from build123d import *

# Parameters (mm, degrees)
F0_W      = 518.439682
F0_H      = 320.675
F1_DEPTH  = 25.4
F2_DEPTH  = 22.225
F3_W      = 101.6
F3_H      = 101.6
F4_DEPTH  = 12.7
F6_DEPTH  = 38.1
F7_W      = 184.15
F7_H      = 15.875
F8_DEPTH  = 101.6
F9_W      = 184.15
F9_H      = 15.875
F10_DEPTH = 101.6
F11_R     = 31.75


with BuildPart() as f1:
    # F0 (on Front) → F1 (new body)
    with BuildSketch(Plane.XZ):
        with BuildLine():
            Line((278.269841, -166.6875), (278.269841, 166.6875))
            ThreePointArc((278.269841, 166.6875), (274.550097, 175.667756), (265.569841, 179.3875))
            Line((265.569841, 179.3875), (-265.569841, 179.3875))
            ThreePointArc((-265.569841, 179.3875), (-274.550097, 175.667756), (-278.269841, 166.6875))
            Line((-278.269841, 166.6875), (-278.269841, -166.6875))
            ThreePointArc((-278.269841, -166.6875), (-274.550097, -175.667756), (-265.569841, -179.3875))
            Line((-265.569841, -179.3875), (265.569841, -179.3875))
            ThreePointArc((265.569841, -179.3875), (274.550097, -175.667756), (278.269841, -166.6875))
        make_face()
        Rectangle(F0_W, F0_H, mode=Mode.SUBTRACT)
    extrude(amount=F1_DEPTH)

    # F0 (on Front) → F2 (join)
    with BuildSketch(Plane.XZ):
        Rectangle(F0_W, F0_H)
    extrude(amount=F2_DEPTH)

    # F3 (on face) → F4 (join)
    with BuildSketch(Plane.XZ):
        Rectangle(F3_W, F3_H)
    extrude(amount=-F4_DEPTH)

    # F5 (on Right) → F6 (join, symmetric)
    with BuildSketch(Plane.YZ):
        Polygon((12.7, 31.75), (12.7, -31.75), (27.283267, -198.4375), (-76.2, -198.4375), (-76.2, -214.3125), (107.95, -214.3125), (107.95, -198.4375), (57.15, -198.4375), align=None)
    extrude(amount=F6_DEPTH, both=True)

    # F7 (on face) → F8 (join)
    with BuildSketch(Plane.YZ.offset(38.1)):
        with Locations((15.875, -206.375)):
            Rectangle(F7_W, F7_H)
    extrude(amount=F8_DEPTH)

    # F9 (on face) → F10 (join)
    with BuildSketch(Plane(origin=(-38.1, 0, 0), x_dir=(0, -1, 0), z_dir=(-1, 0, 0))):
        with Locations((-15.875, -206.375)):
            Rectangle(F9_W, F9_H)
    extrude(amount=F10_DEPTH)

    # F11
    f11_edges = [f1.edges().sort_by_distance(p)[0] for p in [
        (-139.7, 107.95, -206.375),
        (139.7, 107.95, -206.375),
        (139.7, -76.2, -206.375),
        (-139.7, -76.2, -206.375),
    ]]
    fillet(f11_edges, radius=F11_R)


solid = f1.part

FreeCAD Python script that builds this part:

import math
import FreeCAD as App
import Part
import Sketcher
Q = App.Units.Quantity


def edges_at(feature, points):
    """Names of the edges that pass closest to the given points."""
    edges = feature.Shape.Edges
    near = lambda p: min(range(len(edges)), key=lambda i: edges[i].distToShape(Part.Vertex(*p))[0])
    return sorted({f"Edge{near(p) + 1}" for p in points})

doc = App.newDocument("Part")
params = doc.addObject("Spreadsheet::Sheet", "Params")
for row, (alias, value) in enumerate([
    ("sketch1_radius", "0.5 in"),
    ("sketch1_height", "13.125 in"),
    ("sketch1_height2", "12.625 in"),
    ("pad1_length", "1 in"),
    ("sketch2_height", "12.625 in"),
    ("pad2_length", "0.875 in"),
    ("sketch3_width", "4 in"),
    ("pad3_length", "0.5 in"),
    ("sketch4_width", "2 in"),
    ("sketch4_height", "2.5 in"),
    ("sketch4_width2", "7.25 in"),
    ("sketch4_height2", "0.625 in"),
    ("pad4_length", "3 in"),
    ("sketch5_width", "7.25 in"),
    ("sketch5_height", "0.625 in"),
    ("pad5_length", "4 in"),
    ("sketch6_width", "7.25 in"),
    ("sketch6_height", "0.625 in"),
    ("pad6_length", "4 in"),
    ("fillet_radius", "1.25 in"),
], start=1):
    params.set(f"A{row}", alias)
    params.set(f"B{row}", "=" + value)
    params.setAlias(f"B{row}", alias)

body = doc.addObject("PartDesign::Body", "Body")

# Sketch on XZ plane
sketch1 = doc.addObject("Sketcher::SketchObject", "Sketch")
body.addObject(sketch1)
sketch1.AttachmentSupport = (doc.XZ_Plane, [""])
sketch1.MapMode = "FlatFace"
sketch1.addGeometry(Part.LineSegment(App.Vector(278, -167, 0), App.Vector(278, 167, 0)), False)
sketch1.addGeometry(Part.ArcOfCircle(Part.Circle(App.Vector(266, 167, 0), App.Vector(0, 0, 1), 13), math.radians(0), math.radians(90)), False)
sketch1.addGeometry(Part.LineSegment(App.Vector(266, 179, 0), App.Vector(-266, 179, 0)), False)
sketch1.addGeometry(Part.ArcOfCircle(Part.Circle(App.Vector(-266, 167, 0), App.Vector(0, 0, 1), 13), math.radians(90), math.radians(180)), False)
sketch1.addGeometry(Part.LineSegment(App.Vector(-278, 167, 0), App.Vector(-278, -167, 0)), False)
sketch1.addGeometry(Part.ArcOfCircle(Part.Circle(App.Vector(-266, -167, 0), App.Vector(0, 0, 1), 13), math.radians(-180), math.radians(-90)), False)
sketch1.addGeometry(Part.LineSegment(App.Vector(-266, -179, 0), App.Vector(266, -179, 0)), False)
sketch1.addGeometry(Part.ArcOfCircle(Part.Circle(App.Vector(266, -167, 0), App.Vector(0, 0, 1), 13), math.radians(-90), math.radians(0)), False)
sketch1.addGeometry(Part.LineSegment(App.Vector(259, -160, 0), App.Vector(-259, -160, 0)), False)
sketch1.addGeometry(Part.LineSegment(App.Vector(-259, -160, 0), App.Vector(-259, 160, 0)), False)
sketch1.addGeometry(Part.LineSegment(App.Vector(-259, 160, 0), App.Vector(259, 160, 0)), False)
sketch1.addGeometry(Part.LineSegment(App.Vector(259, 160, 0), App.Vector(259, -160, 0)), False)
sketch1.addConstraint(Sketcher.Constraint("Tangent", 0, 2, 1, 1))
sketch1.addConstraint(Sketcher.Constraint("Tangent", 1, 2, 2, 1))
sketch1.addConstraint(Sketcher.Constraint("Tangent", 2, 2, 3, 1))
sketch1.addConstraint(Sketcher.Constraint("Tangent", 3, 2, 4, 1))
sketch1.addConstraint(Sketcher.Constraint("Tangent", 4, 2, 5, 1))
sketch1.addConstraint(Sketcher.Constraint("Tangent", 5, 2, 6, 1))
sketch1.addConstraint(Sketcher.Constraint("Tangent", 6, 2, 7, 1))
sketch1.addConstraint(Sketcher.Constraint("Tangent", 7, 2, 0, 1))
sketch1.addConstraint(Sketcher.Constraint("Coincident", 8, 2, 9, 1))
sketch1.addConstraint(Sketcher.Constraint("Coincident", 9, 2, 10, 1))
sketch1.addConstraint(Sketcher.Constraint("Coincident", 10, 2, 11, 1))
sketch1.addConstraint(Sketcher.Constraint("Coincident", 11, 2, 8, 1))
sketch1.addConstraint(Sketcher.Constraint("Vertical", 0))
sketch1.addConstraint(Sketcher.Constraint("Horizontal", 2))
sketch1.addConstraint(Sketcher.Constraint("Vertical", 4))
sketch1.addConstraint(Sketcher.Constraint("Horizontal", 6))
sketch1.addConstraint(Sketcher.Constraint("Horizontal", 8))
sketch1.addConstraint(Sketcher.Constraint("Vertical", 9))
sketch1.addConstraint(Sketcher.Constraint("Horizontal", 10))
sketch1.addConstraint(Sketcher.Constraint("Vertical", 11))
sketch1.addConstraint(Sketcher.Constraint("Equal", 1, 3))
sketch1.addConstraint(Sketcher.Constraint("Equal", 3, 5))
sketch1.addConstraint(Sketcher.Constraint("Equal", 5, 7))
sketch1.addConstraint(Sketcher.Constraint("Symmetric", 1, 3, 5, 3, -1, 1))
sketch1.addConstraint(Sketcher.Constraint("Symmetric", 8, 2, 10, 2, -1, 1))
sketch1.addConstraint(Sketcher.Constraint("Radius", 1, Q("0.5 in")))
sketch1.addConstraint(Sketcher.Constraint("DistanceY", 0, 1, 0, 2, Q("13.125 in")))
sketch1.addConstraint(Sketcher.Constraint("DistanceY", 9, 1, 9, 2, Q("12.625 in")))
sketch1.addConstraint(Sketcher.Constraint("DistanceX", 5, 3, 8, 2, Q("0.25 in")))
sketch1.addConstraint(Sketcher.Constraint("DistanceX", 2, 2, 2, 1, 531.139682))
sketch1.setExpression("Constraints[25]", "Params.sketch1_radius")
sketch1.setExpression("Constraints[26]", "Params.sketch1_height")
sketch1.setExpression("Constraints[27]", "Params.sketch1_height2")
pad1 = doc.addObject("PartDesign::Pad", "Pad")
body.addObject(pad1)
pad1.Profile = sketch1
pad1.setExpression("Length", "Params.pad1_length")

# Sketch on XZ plane
sketch2 = doc.addObject("Sketcher::SketchObject", "Sketch001")
body.addObject(sketch2)
sketch2.AttachmentSupport = (doc.XZ_Plane, [""])
sketch2.MapMode = "FlatFace"
sketch2.addGeometry(Part.LineSegment(App.Vector(-259, 160, 0), App.Vector(-259, -160, 0)), False)
sketch2.addGeometry(Part.LineSegment(App.Vector(-259, -160, 0), App.Vector(259, -160, 0)), False)
sketch2.addGeometry(Part.LineSegment(App.Vector(259, -160, 0), App.Vector(259, 160, 0)), False)
sketch2.addGeometry(Part.LineSegment(App.Vector(259, 160, 0), App.Vector(-259, 160, 0)), False)
sketch2.addConstraint(Sketcher.Constraint("Coincident", 0, 2, 1, 1))
sketch2.addConstraint(Sketcher.Constraint("Coincident", 1, 2, 2, 1))
sketch2.addConstraint(Sketcher.Constraint("Coincident", 2, 2, 3, 1))
sketch2.addConstraint(Sketcher.Constraint("Coincident", 3, 2, 0, 1))
sketch2.addConstraint(Sketcher.Constraint("Vertical", 0))
sketch2.addConstraint(Sketcher.Constraint("Horizontal", 1))
sketch2.addConstraint(Sketcher.Constraint("Vertical", 2))
sketch2.addConstraint(Sketcher.Constraint("Horizontal", 3))
sketch2.addConstraint(Sketcher.Constraint("Symmetric", 0, 2, 2, 2, -1, 1))
sketch2.addConstraint(Sketcher.Constraint("DistanceY", 0, 2, 0, 1, Q("12.625 in")))
sketch2.addConstraint(Sketcher.Constraint("DistanceX", 1, 1, 1, 2, 518.439682))
sketch2.setExpression("Constraints[9]", "Params.sketch2_height")
pad2 = doc.addObject("PartDesign::Pad", "Pad001")
body.addObject(pad2)
pad2.Profile = sketch2
pad2.setExpression("Length", "Params.pad2_length")

# Sketch on XZ plane
sketch3 = doc.addObject("Sketcher::SketchObject", "Sketch002")
body.addObject(sketch3)
sketch3.AttachmentSupport = (doc.XZ_Plane, [""])
sketch3.MapMode = "FlatFace"
sketch3.addGeometry(Part.LineSegment(App.Vector(-51, 51, 0), App.Vector(-51, -51, 0)), False)
sketch3.addGeometry(Part.LineSegment(App.Vector(-51, -51, 0), App.Vector(51, -51, 0)), False)
sketch3.addGeometry(Part.LineSegment(App.Vector(51, -51, 0), App.Vector(51, 51, 0)), False)
sketch3.addGeometry(Part.LineSegment(App.Vector(51, 51, 0), App.Vector(-51, 51, 0)), False)
sketch3.addConstraint(Sketcher.Constraint("Coincident", 0, 2, 1, 1))
sketch3.addConstraint(Sketcher.Constraint("Coincident", 1, 2, 2, 1))
sketch3.addConstraint(Sketcher.Constraint("Coincident", 2, 2, 3, 1))
sketch3.addConstraint(Sketcher.Constraint("Coincident", 3, 2, 0, 1))
sketch3.addConstraint(Sketcher.Constraint("Vertical", 0))
sketch3.addConstraint(Sketcher.Constraint("Horizontal", 1))
sketch3.addConstraint(Sketcher.Constraint("Vertical", 2))
sketch3.addConstraint(Sketcher.Constraint("Horizontal", 3))
sketch3.addConstraint(Sketcher.Constraint("Symmetric", 0, 2, 2, 2, -1, 1))
sketch3.addConstraint(Sketcher.Constraint("Equal", 3, 0))
sketch3.addConstraint(Sketcher.Constraint("DistanceX", 1, 1, 1, 2, Q("4 in")))
sketch3.setExpression("Constraints[10]", "Params.sketch3_width")
pad3 = doc.addObject("PartDesign::Pad", "Pad002")
body.addObject(pad3)
pad3.Profile = sketch3
pad3.setExpression("Length", "Params.pad3_length")
pad3.Reversed = True

# Sketch on YZ plane
sketch4 = doc.addObject("Sketcher::SketchObject", "Sketch003")
body.addObject(sketch4)
sketch4.AttachmentSupport = (doc.YZ_Plane, [""])
sketch4.MapMode = "FlatFace"
sketch4.addGeometry(Part.LineSegment(App.Vector(13, 32, 0), App.Vector(13, -32, 0)), False)
sketch4.addGeometry(Part.LineSegment(App.Vector(13, -32, 0), App.Vector(27, -198, 0)), False)
sketch4.addGeometry(Part.LineSegment(App.Vector(27, -198, 0), App.Vector(-76, -198, 0)), False)
sketch4.addGeometry(Part.LineSegment(App.Vector(-76, -198, 0), App.Vector(-76, -214, 0)), False)
sketch4.addGeometry(Part.LineSegment(App.Vector(-76, -214, 0), App.Vector(108, -214, 0)), False)
sketch4.addGeometry(Part.LineSegment(App.Vector(108, -214, 0), App.Vector(108, -198, 0)), False)
sketch4.addGeometry(Part.LineSegment(App.Vector(108, -198, 0), App.Vector(57, -198, 0)), False)
sketch4.addGeometry(Part.LineSegment(App.Vector(57, -198, 0), App.Vector(13, 32, 0)), False)
sketch4.addConstraint(Sketcher.Constraint("Coincident", 0, 2, 1, 1))
sketch4.addConstraint(Sketcher.Constraint("Coincident", 1, 2, 2, 1))
sketch4.addConstraint(Sketcher.Constraint("Coincident", 2, 2, 3, 1))
sketch4.addConstraint(Sketcher.Constraint("Coincident", 3, 2, 4, 1))
sketch4.addConstraint(Sketcher.Constraint("Coincident", 4, 2, 5, 1))
sketch4.addConstraint(Sketcher.Constraint("Coincident", 5, 2, 6, 1))
sketch4.addConstraint(Sketcher.Constraint("Coincident", 6, 2, 7, 1))
sketch4.addConstraint(Sketcher.Constraint("Coincident", 7, 2, 0, 1))
sketch4.addConstraint(Sketcher.Constraint("Vertical", 0))
sketch4.addConstraint(Sketcher.Constraint("Horizontal", 2))
sketch4.addConstraint(Sketcher.Constraint("Vertical", 3))
sketch4.addConstraint(Sketcher.Constraint("Horizontal", 4))
sketch4.addConstraint(Sketcher.Constraint("Vertical", 5))
sketch4.addConstraint(Sketcher.Constraint("Horizontal", 6))
sketch4.addConstraint(Sketcher.Constraint("Horizontal", 2, 2, 5, 2))
sketch4.addConstraint(Sketcher.Constraint("DistanceX", 6, 2, 6, 1, Q("2 in")))
sketch4.addConstraint(Sketcher.Constraint("DistanceY", 0, 2, 0, 1, Q("2.5 in")))
sketch4.addConstraint(Sketcher.Constraint("DistanceX", 2, 2, -1, 1, Q("3 in")))
sketch4.addConstraint(Sketcher.Constraint("Angle", 1, Q("-85 deg")))
sketch4.addConstraint(Sketcher.Constraint("DistanceX", 4, 1, 4, 2, Q("7.25 in")))
sketch4.addConstraint(Sketcher.Constraint("DistanceX", -1, 1, 0, 2, Q("0.5 in")))
sketch4.addConstraint(Sketcher.Constraint("DistanceY", 3, 2, 3, 1, Q("0.625 in")))
sketch4.addConstraint(Sketcher.Constraint("DistanceY", 0, 2, -1, 1, Q("1.25 in")))
sketch4.addConstraint(Sketcher.Constraint("DistanceY", 1, 2, -1, 1, Q("7.8125 in")))
sketch4.setExpression("Constraints[15]", "Params.sketch4_width")
sketch4.setExpression("Constraints[16]", "Params.sketch4_height")
sketch4.setExpression("Constraints[19]", "Params.sketch4_width2")
sketch4.setExpression("Constraints[21]", "Params.sketch4_height2")
pad4 = doc.addObject("PartDesign::Pad", "Pad003")
body.addObject(pad4)
pad4.Profile = sketch4
pad4.setExpression("Length", "Params.pad4_length")
pad4.Midplane = True

# Sketch on YZ plane
sketch5 = doc.addObject("Sketcher::SketchObject", "Sketch004")
body.addObject(sketch5)
sketch5.AttachmentSupport = (doc.YZ_Plane, [""])
sketch5.MapMode = "FlatFace"
sketch5.AttachmentOffset = App.Placement(App.Vector(0, 0, 1.5 * 25.4), App.Rotation())
sketch5.addGeometry(Part.LineSegment(App.Vector(-76, -198, 0), App.Vector(-76, -214, 0)), False)
sketch5.addGeometry(Part.LineSegment(App.Vector(-76, -214, 0), App.Vector(108, -214, 0)), False)
sketch5.addGeometry(Part.LineSegment(App.Vector(108, -214, 0), App.Vector(108, -198, 0)), False)
sketch5.addGeometry(Part.LineSegment(App.Vector(108, -198, 0), App.Vector(-76, -198, 0)), False)
sketch5.addConstraint(Sketcher.Constraint("Coincident", 0, 2, 1, 1))
sketch5.addConstraint(Sketcher.Constraint("Coincident", 1, 2, 2, 1))
sketch5.addConstraint(Sketcher.Constraint("Coincident", 2, 2, 3, 1))
sketch5.addConstraint(Sketcher.Constraint("Coincident", 3, 2, 0, 1))
sketch5.addConstraint(Sketcher.Constraint("Vertical", 0))
sketch5.addConstraint(Sketcher.Constraint("Horizontal", 1))
sketch5.addConstraint(Sketcher.Constraint("Vertical", 2))
sketch5.addConstraint(Sketcher.Constraint("Horizontal", 3))
sketch5.addConstraint(Sketcher.Constraint("DistanceX", 0, 2, -1, 1, Q("3 in")))
sketch5.addConstraint(Sketcher.Constraint("DistanceX", 1, 1, 1, 2, Q("7.25 in")))
sketch5.addConstraint(Sketcher.Constraint("DistanceY", 0, 2, 0, 1, Q("0.625 in")))
sketch5.addConstraint(Sketcher.Constraint("DistanceY", 0, 2, -1, 1, Q("8.4375 in")))
sketch5.setExpression("Constraints[9]", "Params.sketch5_width")
sketch5.setExpression("Constraints[10]", "Params.sketch5_height")
pad5 = doc.addObject("PartDesign::Pad", "Pad004")
body.addObject(pad5)
pad5.Profile = sketch5
pad5.setExpression("Length", "Params.pad5_length")

# Sketch on YZ plane
sketch6 = doc.addObject("Sketcher::SketchObject", "Sketch005")
body.addObject(sketch6)
sketch6.AttachmentSupport = (doc.YZ_Plane, [""])
sketch6.MapMode = "FlatFace"
sketch6.AttachmentOffset = App.Placement(App.Vector(0, 0, -1.5 * 25.4), App.Rotation())
sketch6.addGeometry(Part.LineSegment(App.Vector(108, -198, 0), App.Vector(108, -214, 0)), False)
sketch6.addGeometry(Part.LineSegment(App.Vector(108, -214, 0), App.Vector(-76, -214, 0)), False)
sketch6.addGeometry(Part.LineSegment(App.Vector(-76, -214, 0), App.Vector(-76, -198, 0)), False)
sketch6.addGeometry(Part.LineSegment(App.Vector(-76, -198, 0), App.Vector(108, -198, 0)), False)
sketch6.addConstraint(Sketcher.Constraint("Coincident", 0, 2, 1, 1))
sketch6.addConstraint(Sketcher.Constraint("Coincident", 1, 2, 2, 1))
sketch6.addConstraint(Sketcher.Constraint("Coincident", 2, 2, 3, 1))
sketch6.addConstraint(Sketcher.Constraint("Coincident", 3, 2, 0, 1))
sketch6.addConstraint(Sketcher.Constraint("Vertical", 0))
sketch6.addConstraint(Sketcher.Constraint("Horizontal", 1))
sketch6.addConstraint(Sketcher.Constraint("Vertical", 2))
sketch6.addConstraint(Sketcher.Constraint("Horizontal", 3))
sketch6.addConstraint(Sketcher.Constraint("DistanceX", 1, 2, -1, 1, Q("3 in")))
sketch6.addConstraint(Sketcher.Constraint("DistanceX", 1, 2, 1, 1, Q("7.25 in")))
sketch6.addConstraint(Sketcher.Constraint("DistanceY", 0, 2, 0, 1, Q("0.625 in")))
sketch6.addConstraint(Sketcher.Constraint("DistanceY", 0, 2, -1, 1, Q("8.4375 in")))
sketch6.setExpression("Constraints[9]", "Params.sketch6_width")
sketch6.setExpression("Constraints[10]", "Params.sketch6_height")
pad6 = doc.addObject("PartDesign::Pad", "Pad005")
body.addObject(pad6)
pad6.Profile = sketch6
pad6.setExpression("Length", "Params.pad6_length")
pad6.Reversed = True
doc.recompute()

fillet = doc.addObject("PartDesign::Fillet", "Fillet")
body.addObject(fillet)
fillet.Base = (pad6, edges_at(pad6, [
    (-139.7, 107.95, -206.375),
    (139.7, 107.95, -206.375),
    (139.7, -76.2, -206.375),
    (-139.7, -76.2, -206.375),
]))
fillet.setExpression("Radius", "Params.fillet_radius")

doc.recompute()
